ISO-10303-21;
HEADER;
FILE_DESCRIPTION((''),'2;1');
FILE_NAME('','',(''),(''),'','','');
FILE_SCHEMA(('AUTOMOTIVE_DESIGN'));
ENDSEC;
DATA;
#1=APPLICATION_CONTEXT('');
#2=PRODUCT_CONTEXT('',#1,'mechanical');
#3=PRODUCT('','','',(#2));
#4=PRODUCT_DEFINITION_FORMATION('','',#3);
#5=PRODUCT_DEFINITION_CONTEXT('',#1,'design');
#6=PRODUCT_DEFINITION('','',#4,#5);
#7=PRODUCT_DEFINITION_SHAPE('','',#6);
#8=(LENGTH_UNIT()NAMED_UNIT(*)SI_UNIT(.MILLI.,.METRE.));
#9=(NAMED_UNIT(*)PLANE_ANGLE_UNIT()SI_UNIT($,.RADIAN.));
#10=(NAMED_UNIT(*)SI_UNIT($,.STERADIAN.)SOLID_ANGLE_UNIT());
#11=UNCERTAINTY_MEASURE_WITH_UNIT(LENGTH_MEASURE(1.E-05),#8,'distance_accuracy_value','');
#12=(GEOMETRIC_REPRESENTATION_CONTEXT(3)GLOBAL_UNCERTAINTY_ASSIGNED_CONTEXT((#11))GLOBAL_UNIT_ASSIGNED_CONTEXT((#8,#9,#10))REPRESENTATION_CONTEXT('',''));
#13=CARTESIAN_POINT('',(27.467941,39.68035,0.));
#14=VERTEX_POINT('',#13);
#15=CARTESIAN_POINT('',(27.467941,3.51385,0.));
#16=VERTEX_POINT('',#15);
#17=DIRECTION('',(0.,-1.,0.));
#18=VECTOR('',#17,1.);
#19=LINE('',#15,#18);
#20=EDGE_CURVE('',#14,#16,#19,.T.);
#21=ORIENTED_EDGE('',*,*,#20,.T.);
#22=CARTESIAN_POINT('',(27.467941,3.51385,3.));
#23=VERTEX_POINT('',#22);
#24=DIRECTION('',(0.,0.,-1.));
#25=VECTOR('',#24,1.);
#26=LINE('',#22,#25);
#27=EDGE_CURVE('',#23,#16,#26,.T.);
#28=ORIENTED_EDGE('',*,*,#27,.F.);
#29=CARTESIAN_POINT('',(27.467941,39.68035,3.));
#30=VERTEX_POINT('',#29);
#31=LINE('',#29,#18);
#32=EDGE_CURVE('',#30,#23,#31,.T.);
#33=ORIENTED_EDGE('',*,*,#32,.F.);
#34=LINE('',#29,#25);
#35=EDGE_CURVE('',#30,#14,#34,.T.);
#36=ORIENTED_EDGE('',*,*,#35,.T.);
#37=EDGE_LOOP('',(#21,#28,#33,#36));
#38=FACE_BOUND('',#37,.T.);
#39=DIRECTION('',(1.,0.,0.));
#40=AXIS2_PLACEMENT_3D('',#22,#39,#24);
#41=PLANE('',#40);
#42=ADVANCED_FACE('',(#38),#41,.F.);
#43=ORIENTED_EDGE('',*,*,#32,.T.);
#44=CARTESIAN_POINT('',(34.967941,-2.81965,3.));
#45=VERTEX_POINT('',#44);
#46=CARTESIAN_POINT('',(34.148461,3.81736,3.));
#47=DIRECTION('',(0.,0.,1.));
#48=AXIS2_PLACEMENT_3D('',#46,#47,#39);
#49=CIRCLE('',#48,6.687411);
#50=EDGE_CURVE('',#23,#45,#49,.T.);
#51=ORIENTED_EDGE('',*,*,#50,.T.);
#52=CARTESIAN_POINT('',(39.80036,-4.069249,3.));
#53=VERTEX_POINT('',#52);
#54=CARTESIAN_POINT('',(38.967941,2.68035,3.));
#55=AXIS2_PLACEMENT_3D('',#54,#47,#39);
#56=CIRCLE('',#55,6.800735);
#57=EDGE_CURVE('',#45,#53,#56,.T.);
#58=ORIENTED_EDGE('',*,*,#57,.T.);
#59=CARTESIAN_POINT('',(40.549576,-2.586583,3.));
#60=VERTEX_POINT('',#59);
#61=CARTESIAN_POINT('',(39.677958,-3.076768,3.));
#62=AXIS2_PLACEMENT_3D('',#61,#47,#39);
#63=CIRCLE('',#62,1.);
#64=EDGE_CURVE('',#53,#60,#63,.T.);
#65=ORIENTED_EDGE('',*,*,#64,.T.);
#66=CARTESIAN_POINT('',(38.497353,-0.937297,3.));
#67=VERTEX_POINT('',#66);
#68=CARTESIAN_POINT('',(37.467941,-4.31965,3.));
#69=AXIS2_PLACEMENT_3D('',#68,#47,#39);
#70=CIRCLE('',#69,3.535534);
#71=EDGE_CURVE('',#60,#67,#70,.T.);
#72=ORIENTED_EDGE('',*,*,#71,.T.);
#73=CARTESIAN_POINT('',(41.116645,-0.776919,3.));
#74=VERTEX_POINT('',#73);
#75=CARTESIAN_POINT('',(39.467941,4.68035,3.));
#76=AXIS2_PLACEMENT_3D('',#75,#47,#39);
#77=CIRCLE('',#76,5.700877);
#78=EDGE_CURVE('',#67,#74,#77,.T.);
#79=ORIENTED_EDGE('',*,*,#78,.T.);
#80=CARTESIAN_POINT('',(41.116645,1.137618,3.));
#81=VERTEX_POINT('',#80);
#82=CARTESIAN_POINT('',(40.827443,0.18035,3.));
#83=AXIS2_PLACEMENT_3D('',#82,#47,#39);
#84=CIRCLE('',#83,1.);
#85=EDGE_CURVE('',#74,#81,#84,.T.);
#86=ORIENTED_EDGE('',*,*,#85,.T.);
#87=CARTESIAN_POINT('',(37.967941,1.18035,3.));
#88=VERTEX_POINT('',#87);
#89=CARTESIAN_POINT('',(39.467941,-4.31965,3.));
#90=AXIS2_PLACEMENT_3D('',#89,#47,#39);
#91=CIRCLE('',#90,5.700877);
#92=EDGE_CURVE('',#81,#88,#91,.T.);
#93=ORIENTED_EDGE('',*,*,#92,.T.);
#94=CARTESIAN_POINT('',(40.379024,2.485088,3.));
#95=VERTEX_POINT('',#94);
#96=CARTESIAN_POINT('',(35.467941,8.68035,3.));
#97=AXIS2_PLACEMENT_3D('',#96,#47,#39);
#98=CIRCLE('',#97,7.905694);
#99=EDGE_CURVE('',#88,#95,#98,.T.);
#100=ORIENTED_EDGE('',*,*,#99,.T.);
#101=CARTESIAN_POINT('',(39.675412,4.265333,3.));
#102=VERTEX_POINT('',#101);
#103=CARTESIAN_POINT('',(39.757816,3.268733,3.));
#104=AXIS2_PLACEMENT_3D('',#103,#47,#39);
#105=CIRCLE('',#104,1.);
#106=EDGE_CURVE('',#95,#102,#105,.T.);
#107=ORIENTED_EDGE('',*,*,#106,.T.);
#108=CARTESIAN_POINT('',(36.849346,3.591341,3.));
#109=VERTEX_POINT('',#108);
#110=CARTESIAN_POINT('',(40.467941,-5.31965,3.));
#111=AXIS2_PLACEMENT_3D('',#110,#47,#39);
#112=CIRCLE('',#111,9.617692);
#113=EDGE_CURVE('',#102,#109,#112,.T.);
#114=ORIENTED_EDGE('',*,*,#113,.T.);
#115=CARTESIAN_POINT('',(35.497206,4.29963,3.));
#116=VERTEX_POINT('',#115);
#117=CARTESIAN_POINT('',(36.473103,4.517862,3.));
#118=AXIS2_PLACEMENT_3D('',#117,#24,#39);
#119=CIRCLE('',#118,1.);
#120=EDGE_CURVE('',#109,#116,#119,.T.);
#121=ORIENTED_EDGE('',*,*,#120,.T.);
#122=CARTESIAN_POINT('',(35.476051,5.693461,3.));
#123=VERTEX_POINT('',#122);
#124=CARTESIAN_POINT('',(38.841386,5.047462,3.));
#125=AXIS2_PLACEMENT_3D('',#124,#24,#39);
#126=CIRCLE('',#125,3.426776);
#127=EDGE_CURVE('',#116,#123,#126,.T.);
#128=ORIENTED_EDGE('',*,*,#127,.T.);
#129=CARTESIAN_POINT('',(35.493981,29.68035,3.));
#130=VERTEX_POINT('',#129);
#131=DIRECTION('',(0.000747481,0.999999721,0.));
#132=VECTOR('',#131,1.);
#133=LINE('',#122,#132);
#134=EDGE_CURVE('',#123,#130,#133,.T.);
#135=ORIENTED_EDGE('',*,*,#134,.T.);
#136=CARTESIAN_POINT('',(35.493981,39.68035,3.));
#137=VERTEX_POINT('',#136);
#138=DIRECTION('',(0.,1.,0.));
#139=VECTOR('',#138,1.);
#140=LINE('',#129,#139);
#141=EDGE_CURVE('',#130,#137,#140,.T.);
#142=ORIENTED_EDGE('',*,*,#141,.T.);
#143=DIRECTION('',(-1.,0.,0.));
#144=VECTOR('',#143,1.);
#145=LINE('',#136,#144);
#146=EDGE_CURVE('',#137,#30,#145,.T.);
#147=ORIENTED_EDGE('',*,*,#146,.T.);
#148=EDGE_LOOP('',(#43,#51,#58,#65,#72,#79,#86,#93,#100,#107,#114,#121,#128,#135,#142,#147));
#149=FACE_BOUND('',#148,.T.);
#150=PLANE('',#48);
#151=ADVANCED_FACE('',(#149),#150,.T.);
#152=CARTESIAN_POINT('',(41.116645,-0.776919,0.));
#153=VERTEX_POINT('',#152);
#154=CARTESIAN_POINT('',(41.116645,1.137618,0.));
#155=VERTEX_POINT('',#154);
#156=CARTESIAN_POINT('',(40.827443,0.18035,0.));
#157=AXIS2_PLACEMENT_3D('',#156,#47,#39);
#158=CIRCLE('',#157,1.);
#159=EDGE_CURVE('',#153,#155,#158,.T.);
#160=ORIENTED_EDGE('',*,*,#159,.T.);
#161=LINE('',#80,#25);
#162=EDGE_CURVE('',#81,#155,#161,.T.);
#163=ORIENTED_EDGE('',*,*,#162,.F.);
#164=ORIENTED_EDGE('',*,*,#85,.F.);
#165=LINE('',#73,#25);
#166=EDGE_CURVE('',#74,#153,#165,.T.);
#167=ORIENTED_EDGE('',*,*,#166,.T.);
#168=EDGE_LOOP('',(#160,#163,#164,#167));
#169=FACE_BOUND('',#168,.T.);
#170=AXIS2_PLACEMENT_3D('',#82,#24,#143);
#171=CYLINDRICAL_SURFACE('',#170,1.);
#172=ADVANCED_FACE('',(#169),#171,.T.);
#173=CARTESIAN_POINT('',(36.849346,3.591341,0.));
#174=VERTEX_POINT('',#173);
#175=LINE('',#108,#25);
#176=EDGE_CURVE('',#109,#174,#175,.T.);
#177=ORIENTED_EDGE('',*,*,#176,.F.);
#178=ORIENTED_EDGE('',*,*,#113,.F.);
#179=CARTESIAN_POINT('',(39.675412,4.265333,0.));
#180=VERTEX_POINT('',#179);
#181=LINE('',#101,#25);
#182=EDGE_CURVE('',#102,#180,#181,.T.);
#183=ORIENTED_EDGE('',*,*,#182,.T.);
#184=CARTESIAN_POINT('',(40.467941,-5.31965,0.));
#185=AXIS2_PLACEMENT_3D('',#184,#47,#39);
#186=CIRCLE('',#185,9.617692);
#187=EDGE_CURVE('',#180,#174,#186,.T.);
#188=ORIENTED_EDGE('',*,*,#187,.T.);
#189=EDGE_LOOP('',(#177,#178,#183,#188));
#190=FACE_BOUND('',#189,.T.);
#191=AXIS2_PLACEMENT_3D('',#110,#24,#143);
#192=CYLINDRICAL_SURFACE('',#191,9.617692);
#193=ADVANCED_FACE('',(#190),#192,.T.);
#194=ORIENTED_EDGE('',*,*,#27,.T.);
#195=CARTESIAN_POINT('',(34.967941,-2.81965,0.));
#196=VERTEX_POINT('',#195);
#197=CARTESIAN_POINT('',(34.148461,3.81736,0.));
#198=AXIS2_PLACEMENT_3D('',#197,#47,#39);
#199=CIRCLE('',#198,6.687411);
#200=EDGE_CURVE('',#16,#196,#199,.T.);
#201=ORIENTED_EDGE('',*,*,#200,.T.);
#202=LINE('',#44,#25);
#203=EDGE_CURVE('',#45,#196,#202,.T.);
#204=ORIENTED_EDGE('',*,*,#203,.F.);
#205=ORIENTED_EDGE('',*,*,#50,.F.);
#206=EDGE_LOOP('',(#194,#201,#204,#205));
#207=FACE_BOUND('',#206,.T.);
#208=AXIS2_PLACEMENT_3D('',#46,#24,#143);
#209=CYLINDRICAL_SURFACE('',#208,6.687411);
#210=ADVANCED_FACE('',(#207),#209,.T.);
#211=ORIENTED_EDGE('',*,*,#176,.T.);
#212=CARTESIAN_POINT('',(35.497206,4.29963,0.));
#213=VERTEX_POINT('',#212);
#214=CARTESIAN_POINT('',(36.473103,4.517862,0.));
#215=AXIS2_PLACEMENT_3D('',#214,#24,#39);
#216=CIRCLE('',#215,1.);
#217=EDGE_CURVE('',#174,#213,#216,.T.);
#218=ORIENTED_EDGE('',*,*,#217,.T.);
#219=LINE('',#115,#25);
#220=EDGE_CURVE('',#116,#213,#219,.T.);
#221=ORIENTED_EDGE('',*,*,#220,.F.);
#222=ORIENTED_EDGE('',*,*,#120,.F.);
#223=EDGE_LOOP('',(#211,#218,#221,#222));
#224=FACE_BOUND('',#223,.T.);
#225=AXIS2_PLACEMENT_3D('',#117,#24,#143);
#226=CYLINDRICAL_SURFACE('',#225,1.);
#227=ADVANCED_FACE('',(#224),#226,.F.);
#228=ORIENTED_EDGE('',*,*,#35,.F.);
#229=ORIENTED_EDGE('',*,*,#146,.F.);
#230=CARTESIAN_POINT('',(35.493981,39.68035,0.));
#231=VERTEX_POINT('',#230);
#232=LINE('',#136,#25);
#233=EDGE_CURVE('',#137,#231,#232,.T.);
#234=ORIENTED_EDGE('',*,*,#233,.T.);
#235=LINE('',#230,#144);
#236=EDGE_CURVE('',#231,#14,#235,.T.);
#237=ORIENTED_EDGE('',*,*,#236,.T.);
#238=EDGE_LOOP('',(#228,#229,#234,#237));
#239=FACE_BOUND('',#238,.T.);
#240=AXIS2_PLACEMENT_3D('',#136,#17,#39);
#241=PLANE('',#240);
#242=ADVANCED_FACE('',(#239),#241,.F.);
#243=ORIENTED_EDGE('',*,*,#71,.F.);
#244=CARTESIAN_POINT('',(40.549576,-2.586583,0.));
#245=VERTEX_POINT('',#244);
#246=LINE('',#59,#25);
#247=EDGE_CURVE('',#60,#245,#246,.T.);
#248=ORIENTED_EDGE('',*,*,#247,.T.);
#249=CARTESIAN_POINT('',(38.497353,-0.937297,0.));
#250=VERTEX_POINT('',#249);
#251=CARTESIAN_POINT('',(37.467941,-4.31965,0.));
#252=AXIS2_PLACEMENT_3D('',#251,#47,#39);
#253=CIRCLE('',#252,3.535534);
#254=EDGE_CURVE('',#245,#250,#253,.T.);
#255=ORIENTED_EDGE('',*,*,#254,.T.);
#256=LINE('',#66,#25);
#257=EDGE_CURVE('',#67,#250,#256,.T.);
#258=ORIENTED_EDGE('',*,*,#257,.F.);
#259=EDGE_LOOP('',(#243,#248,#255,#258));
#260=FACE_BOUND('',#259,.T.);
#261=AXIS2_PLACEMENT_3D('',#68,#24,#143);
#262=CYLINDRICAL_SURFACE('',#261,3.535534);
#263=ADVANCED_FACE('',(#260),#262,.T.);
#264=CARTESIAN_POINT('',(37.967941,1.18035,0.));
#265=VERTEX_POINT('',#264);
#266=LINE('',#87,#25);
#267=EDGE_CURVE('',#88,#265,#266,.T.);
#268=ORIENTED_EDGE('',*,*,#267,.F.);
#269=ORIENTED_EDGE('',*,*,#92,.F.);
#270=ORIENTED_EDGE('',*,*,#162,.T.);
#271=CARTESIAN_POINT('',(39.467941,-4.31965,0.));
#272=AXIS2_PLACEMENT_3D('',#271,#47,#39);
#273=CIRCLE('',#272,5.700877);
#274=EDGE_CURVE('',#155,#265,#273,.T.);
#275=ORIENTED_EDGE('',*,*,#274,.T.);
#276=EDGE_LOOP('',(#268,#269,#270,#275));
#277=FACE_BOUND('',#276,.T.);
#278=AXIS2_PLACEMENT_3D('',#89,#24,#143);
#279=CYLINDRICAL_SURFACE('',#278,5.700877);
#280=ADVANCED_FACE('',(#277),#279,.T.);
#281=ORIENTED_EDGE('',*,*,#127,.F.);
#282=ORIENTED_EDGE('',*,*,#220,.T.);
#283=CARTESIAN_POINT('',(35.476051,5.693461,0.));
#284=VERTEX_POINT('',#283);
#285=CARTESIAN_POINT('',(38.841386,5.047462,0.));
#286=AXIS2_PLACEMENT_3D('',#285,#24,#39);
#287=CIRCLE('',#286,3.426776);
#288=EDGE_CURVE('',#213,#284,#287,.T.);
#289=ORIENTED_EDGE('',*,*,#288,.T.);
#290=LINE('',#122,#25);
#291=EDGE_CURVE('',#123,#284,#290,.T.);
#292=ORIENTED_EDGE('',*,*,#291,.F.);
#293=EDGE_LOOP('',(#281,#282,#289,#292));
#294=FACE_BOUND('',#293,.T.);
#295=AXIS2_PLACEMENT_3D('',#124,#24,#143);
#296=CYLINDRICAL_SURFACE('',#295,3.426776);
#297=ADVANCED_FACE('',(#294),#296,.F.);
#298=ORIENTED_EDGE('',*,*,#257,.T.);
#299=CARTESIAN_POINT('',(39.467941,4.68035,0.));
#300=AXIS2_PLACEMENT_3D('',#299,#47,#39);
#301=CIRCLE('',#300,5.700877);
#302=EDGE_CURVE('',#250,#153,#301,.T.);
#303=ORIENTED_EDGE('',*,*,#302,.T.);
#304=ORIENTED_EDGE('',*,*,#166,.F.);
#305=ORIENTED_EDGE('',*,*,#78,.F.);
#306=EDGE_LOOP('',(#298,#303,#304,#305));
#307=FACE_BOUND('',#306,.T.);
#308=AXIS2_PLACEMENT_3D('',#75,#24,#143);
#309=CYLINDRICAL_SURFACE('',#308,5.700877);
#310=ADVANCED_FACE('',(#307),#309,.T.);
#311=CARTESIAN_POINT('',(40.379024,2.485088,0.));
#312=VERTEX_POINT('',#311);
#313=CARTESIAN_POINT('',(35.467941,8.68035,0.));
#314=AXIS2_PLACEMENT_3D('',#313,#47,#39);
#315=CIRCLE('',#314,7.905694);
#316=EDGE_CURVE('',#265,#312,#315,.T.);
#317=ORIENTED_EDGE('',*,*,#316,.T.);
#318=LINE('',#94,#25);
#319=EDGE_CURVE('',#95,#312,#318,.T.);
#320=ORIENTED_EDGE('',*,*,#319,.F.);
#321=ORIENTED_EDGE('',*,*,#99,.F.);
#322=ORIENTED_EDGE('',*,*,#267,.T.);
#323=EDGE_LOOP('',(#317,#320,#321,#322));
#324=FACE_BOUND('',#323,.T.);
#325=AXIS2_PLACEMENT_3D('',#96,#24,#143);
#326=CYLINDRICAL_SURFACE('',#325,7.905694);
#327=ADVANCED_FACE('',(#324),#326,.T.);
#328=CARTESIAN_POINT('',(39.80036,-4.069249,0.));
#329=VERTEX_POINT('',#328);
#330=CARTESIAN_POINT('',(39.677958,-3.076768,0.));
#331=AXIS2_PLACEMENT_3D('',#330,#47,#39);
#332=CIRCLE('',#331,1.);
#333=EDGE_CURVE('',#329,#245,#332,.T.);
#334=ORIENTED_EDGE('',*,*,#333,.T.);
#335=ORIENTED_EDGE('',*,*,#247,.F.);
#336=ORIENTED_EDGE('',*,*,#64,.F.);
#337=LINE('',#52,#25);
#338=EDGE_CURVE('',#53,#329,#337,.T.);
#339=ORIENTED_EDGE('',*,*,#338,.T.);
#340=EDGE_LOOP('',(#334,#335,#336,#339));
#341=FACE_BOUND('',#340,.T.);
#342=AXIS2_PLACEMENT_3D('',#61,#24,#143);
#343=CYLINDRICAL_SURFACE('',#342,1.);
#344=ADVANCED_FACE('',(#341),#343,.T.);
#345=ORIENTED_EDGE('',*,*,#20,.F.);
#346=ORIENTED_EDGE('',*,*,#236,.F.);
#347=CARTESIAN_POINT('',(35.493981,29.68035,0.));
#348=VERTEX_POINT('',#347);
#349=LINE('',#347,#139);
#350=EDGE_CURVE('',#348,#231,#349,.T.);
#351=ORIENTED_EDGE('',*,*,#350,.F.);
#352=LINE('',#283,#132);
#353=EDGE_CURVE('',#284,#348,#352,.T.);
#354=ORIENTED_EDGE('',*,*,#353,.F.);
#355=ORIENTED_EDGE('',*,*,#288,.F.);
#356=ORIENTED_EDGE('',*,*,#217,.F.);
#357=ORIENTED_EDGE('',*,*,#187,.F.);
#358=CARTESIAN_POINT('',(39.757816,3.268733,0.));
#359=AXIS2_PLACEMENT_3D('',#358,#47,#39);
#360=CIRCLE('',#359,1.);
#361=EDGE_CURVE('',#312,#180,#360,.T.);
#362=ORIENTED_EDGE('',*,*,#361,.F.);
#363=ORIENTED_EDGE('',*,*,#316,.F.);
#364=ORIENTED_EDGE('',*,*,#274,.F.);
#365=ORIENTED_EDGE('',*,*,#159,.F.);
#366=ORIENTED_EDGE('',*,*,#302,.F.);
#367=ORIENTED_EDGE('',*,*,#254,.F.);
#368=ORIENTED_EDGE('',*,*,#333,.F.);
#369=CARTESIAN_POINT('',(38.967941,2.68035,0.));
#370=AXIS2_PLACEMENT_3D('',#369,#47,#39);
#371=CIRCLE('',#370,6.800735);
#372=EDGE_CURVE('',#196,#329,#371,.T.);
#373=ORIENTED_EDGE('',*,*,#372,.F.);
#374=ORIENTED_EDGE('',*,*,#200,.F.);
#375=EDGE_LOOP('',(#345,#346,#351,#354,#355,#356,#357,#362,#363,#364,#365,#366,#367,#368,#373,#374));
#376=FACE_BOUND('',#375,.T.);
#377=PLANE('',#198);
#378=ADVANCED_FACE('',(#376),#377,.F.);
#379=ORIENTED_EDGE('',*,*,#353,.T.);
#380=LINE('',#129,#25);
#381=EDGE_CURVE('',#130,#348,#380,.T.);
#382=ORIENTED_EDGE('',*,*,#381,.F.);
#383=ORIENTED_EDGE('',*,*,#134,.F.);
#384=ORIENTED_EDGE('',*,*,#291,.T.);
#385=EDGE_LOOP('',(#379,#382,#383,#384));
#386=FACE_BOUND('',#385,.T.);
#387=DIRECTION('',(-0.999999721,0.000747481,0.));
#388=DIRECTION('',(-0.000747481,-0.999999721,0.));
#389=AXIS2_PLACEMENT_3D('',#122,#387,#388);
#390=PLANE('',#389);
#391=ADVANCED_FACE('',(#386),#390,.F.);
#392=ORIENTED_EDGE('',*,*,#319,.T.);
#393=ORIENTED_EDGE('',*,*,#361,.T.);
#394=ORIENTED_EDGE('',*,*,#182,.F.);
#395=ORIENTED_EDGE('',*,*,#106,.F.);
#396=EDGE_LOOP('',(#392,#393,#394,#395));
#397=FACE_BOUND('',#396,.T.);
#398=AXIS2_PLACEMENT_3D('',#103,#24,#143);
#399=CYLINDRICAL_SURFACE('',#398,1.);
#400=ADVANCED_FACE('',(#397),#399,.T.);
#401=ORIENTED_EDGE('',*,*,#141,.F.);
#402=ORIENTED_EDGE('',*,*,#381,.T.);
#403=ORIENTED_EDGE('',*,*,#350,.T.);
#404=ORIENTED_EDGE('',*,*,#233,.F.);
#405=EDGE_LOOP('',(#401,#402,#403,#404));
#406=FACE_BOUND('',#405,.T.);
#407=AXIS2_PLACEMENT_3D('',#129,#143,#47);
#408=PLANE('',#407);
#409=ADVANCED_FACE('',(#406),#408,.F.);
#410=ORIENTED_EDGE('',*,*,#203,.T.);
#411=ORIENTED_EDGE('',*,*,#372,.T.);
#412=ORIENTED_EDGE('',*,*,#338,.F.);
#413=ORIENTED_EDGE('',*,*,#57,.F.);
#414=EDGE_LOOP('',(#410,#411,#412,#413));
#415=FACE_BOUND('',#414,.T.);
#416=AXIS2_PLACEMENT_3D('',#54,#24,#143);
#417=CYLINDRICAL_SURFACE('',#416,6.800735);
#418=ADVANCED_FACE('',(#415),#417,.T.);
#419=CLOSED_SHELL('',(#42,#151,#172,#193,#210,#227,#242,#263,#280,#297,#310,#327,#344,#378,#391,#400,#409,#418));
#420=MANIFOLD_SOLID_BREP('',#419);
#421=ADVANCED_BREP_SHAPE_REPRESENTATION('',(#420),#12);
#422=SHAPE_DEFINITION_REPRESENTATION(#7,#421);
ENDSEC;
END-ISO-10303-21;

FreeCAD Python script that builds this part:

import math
import FreeCAD as App
import Part
import Sketcher
Q = App.Units.Quantity

doc = App.newDocument("Part")
params = doc.addObject("Spreadsheet::Sheet", "Params")
for row, (alias, value) in enumerate([
    ("sketch1_radius", "1 mm"),
    ("sketch1_height", "10 mm"),
    ("pad1_length", "3 mm"),
], start=1):
    params.set(f"A{row}", alias)
    params.set(f"B{row}", "=" + value)
    params.setAlias(f"B{row}", alias)

body = doc.addObject("PartDesign::Body", "Body")

# Sketch on XY plane
sketch1 = body.newObject("Sketcher::SketchObject", "Sketch")
sketch1.AttachmentSupport = (doc.getObject("XY_Plane"), [""])
sketch1.MapMode = "FlatFace"
sketch1.addGeometry([
    Part.LineSegment(App.Vector(27.5, 39.7, 0), App.Vector(27.5, 3.5, 0)),  # 0
    Part.ArcOfCircle(Part.Circle(App.Vector(34.1, 3.8, 0), App.Vector(0, 0, 1), 6.7), math.radians(-177), math.radians(-83)),  # 1
    Part.ArcOfCircle(Part.Circle(App.Vector(39, 2.7, 0), App.Vector(0, 0, 1), 6.8), math.radians(-126), math.radians(-83)),  # 2
    Part.ArcOfCircle(Part.Circle(App.Vector(39.7, -3.1, 0), App.Vector(0, 0, 1), 1), math.radians(-83), math.radians(29)),  # 3
    Part.ArcOfCircle(Part.Circle(App.Vector(37.5, -4.3, 0), App.Vector(0, 0, 1), 3.5), math.radians(29), math.radians(73)),  # 4
    Part.ArcOfCircle(Part.Circle(App.Vector(39.5, 4.7, 0), App.Vector(0, 0, 1), 5.7), math.radians(-100), math.radians(-73)),  # 5
    Part.ArcOfCircle(Part.Circle(App.Vector(40.8, 0.2, 0), App.Vector(0, 0, 1), 1), math.radians(-73), math.radians(73)),  # 6
    Part.ArcOfCircle(Part.Circle(App.Vector(39.5, -4.3, 0), App.Vector(0, 0, 1), 5.7), math.radians(73), math.radians(105)),  # 7
    Part.ArcOfCircle(Part.Circle(App.Vector(35.5, 8.7, 0), App.Vector(0, 0, 1), 7.9), math.radians(-71.57), math.radians(-51.6)),  # 8
    Part.ArcOfCircle(Part.Circle(App.Vector(39.8, 3.3, 0), App.Vector(0, 0, 1), 1), math.radians(-52), math.radians(95)),  # 9
    Part.ArcOfCircle(Part.Circle(App.Vector(40.5, -5.3, 0), App.Vector(0, 0, 1), 9.6), math.radians(94.73), math.radians(112.1)),  # 10
    Part.ArcOfCircle(Part.Circle(App.Vector(36.5, 4.5, 0), App.Vector(0, 0, 1), 1), math.radians(-167), math.radians(-68)),  # 11
    Part.ArcOfCircle(Part.Circle(App.Vector(38.8, 5, 0), App.Vector(0, 0, 1), 3.4), math.radians(169), math.radians(193)),  # 12
    Part.LineSegment(App.Vector(35.5, 5.7, 0), App.Vector(35.5, 29.7, 0)),  # 13
    Part.LineSegment(App.Vector(35.5, 29.7, 0), App.Vector(35.5, 39.7, 0)),  # 14
    Part.LineSegment(App.Vector(35.5, 39.7, 0), App.Vector(27.5, 39.7, 0)),  # 15
], False)
sketch1.addConstraint([
    Sketcher.Constraint("Coincident", 0, 2, 1, 1),
    Sketcher.Constraint("Coincident", 1, 2, 2, 1),
    Sketcher.Constraint("Tangent", 2, 2, 3, 1),
    Sketcher.Constraint("Tangent", 3, 2, 4, 1),
    Sketcher.Constraint("Coincident", 4, 2, 5, 1),
    Sketcher.Constraint("Tangent", 5, 2, 6, 1),
    Sketcher.Constraint("Tangent", 6, 2, 7, 1),
    Sketcher.Constraint("Coincident", 7, 2, 8, 1),
    Sketcher.Constraint("Tangent", 8, 2, 9, 1),
    Sketcher.Constraint("Tangent", 9, 2, 10, 1),
    Sketcher.Constraint("Tangent", 10, 2, 11, 2),
    Sketcher.Constraint("Tangent", 11, 1, 12, 2),
    Sketcher.Constraint("Coincident", 12, 1, 13, 1),
    Sketcher.Constraint("Coincident", 13, 2, 14, 1),
    Sketcher.Constraint("Coincident", 14, 2, 15, 1),
    Sketcher.Constraint("Coincident", 15, 2, 0, 1),
    Sketcher.Constraint("Vertical", 0),
    Sketcher.Constraint("Vertical", 14),
    Sketcher.Constraint("Horizontal", 15),
    Sketcher.Constraint("Equal", 3, 6),
    Sketcher.Constraint("Equal", 5, 7),
    Sketcher.Constraint("Equal", 6, 9),
    Sketcher.Constraint("Equal", 9, 11),
    Sketcher.Constraint("Horizontal", 4, 3, 7, 3),
    Sketcher.Constraint("Vertical", 5, 3, 7, 3),
    Sketcher.Constraint("Radius", 3, Q("1 mm")),
    Sketcher.Constraint("DistanceY", 14, 1, 14, 2, Q("10 mm")),
    Sketcher.Constraint("DistanceY", 4, 3, 2, 3, Q("7 mm")),
    Sketcher.Constraint("DistanceY", 2, 3, 5, 3, Q("2 mm")),
    Sketcher.Constraint("DistanceX", 4, 3, 5, 3, Q("2 mm")),
    Sketcher.Constraint("DistanceX", 8, 3, 5, 3, Q("4 mm")),
    Sketcher.Constraint("DistanceY", 5, 3, 8, 3, Q("4 mm")),
    Sketcher.Constraint("DistanceX", 7, 3, 10, 3, Q("1 mm")),
    Sketcher.Constraint("DistanceY", 10, 3, 7, 3, Q("1 mm")),
    Sketcher.Constraint("DistanceX", 0, 2, 8, 3, Q("8 mm")),
    Sketcher.Constraint("DistanceY", 1, 2, 6, 3, Q("3 mm")),
    Sketcher.Constraint("DistanceX", 7, 2, 2, 3, Q("1 mm")),
    Sketcher.Constraint("DistanceY", 6, 3, 7, 2, Q("1 mm")),
    Sketcher.Constraint("DistanceY", 8, 3, 13, 2, Q("21 mm")),
    Sketcher.Constraint("DistanceX", 4, 3, 2, 3, Q("1.5 mm")),
    Sketcher.Constraint("DistanceX", 1, 2, 4, 3, Q("2.5 mm")),
    Sketcher.Constraint("Radius", 1, Q("6.687411 mm")),
    Sketcher.Constraint("DistanceY", 0, 2, 0, 1, Q("36.1665 mm")),
    Sketcher.Constraint("Radius", 4, Q("3.535534 mm")),
    Sketcher.Constraint("Radius", 10, Q("9.617692 mm")),
    Sketcher.Constraint("Radius", 12, Q("3.426776 mm")),
    Sketcher.Constraint("DistanceX", 15, 2, 15, 1, Q("8.02604 mm")),
    Sketcher.Constraint("DistanceY", 1, 3, 11, 3, Q("0.700502 mm")),
    Sketcher.Constraint("DistanceY", 11, 3, 12, 3, Q("0.5296 mm")),
    Sketcher.Constraint("DistanceY", 11, 3, 12, 1, Q("1.175599 mm")),
    Sketcher.Constraint("DistanceX", -1, 1, 1, 3, Q("34.148461 mm")),
    Sketcher.Constraint("DistanceY", -1, 1, 1, 3, Q("3.81736 mm")),
])
sketch1.setExpression("Constraints[25]", "Params.sketch1_radius")
sketch1.setExpression("Constraints[26]", "Params.sketch1_height")
pad1 = body.newObject("PartDesign::Pad", "Pad")
pad1.Profile = sketch1
pad1.setExpression("Length", "Params.pad1_length")

doc.recompute()
